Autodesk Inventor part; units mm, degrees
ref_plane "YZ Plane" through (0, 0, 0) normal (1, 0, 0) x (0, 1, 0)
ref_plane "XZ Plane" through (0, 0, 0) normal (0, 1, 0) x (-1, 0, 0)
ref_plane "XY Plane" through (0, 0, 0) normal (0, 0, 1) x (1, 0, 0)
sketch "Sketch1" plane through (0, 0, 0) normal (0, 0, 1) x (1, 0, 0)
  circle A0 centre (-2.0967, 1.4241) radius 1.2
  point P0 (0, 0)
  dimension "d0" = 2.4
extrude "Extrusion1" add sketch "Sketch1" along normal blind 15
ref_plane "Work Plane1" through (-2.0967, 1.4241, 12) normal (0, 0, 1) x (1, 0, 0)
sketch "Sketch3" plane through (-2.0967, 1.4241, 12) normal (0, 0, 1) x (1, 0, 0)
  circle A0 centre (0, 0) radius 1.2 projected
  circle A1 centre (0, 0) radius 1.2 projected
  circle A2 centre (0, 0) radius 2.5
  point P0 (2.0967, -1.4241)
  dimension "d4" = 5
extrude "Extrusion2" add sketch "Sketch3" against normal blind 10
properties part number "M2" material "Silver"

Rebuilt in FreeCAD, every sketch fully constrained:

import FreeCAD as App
import Part
import Sketcher

V = App.Vector
Q = App.Units.Quantity

doc = App.newDocument("Part")
params = doc.addObject("Spreadsheet::Sheet", "Params")
for row, (alias, value) in enumerate([
    ("sketch1_diameter", "2.4 mm"),
    ("pad1_length", "15 mm"),
    ("sketch2_diameter", "5 mm"),
    ("sketch2_diameter2", "2.4 mm"),
    ("pad2_length", "10 mm"),
], start=1):
    params.set(f"A{row}", alias)
    params.set(f"B{row}", "=" + value)
    params.setAlias(f"B{row}", alias)

body = doc.addObject("PartDesign::Body", "Body")

sketch1 = body.newObject("Sketcher::SketchObject", "Sketch")
sketch1.AttachmentSupport = (doc.getObject("XY_Plane"), [""])
sketch1.MapMode = "FlatFace"
sketch1.addGeometry(Part.Circle(V(-2.0967, 1.4241, 0), V(0, 0, 1), 1.2), False)
sketch1.addConstraint([
    Sketcher.Constraint("Diameter", 0, Q("2.4 mm")),
    Sketcher.Constraint("DistanceY", -1, 1, 0, 3, Q("1.424 mm")),
    Sketcher.Constraint("DistanceX", 0, 3, -1, 1, Q("2.0967 mm")),
])
sketch1.setExpression("Constraints[0]", "Params.sketch1_diameter")
pad1 = body.newObject("PartDesign::Pad", "Pad")
pad1.Profile = sketch1
pad1.setExpression("Length", "Params.pad1_length")

sketch2 = body.newObject("Sketcher::SketchObject", "Sketch001")
sketch2.AttachmentSupport = (doc.getObject("XY_Plane"), [""])
sketch2.MapMode = "FlatFace"
sketch2.AttachmentOffset = App.Placement(V(0, 0, 12), App.Rotation())
sketch2.addGeometry([
    Part.Circle(V(-2.0967, 1.4241, 0), V(0, 0, 1), 2.5),
    Part.Circle(V(-2.0967, 1.4241, 0), V(0, 0, 1), 1.2),
], False)
sketch2.addConstraint([
    Sketcher.Constraint("Coincident", 1, 3, 0, 3),
    Sketcher.Constraint("Diameter", 0, Q("5 mm")),
    Sketcher.Constraint("Diameter", 1, Q("2.4 mm")),
    Sketcher.Constraint("DistanceY", -1, 1, 0, 3, Q("1.424 mm")),
    Sketcher.Constraint("DistanceX", 0, 3, -1, 1, Q("2.0967 mm")),
])
sketch2.setExpression("Constraints[1]", "Params.sketch2_diameter")
sketch2.setExpression("Constraints[2]", "Params.sketch2_diameter2")
pad2 = body.newObject("PartDesign::Pad", "Pad001")
pad2.Profile = sketch2
pad2.setExpression("Length", "Params.pad2_length")
pad2.Reversed = True

doc.recompute()
